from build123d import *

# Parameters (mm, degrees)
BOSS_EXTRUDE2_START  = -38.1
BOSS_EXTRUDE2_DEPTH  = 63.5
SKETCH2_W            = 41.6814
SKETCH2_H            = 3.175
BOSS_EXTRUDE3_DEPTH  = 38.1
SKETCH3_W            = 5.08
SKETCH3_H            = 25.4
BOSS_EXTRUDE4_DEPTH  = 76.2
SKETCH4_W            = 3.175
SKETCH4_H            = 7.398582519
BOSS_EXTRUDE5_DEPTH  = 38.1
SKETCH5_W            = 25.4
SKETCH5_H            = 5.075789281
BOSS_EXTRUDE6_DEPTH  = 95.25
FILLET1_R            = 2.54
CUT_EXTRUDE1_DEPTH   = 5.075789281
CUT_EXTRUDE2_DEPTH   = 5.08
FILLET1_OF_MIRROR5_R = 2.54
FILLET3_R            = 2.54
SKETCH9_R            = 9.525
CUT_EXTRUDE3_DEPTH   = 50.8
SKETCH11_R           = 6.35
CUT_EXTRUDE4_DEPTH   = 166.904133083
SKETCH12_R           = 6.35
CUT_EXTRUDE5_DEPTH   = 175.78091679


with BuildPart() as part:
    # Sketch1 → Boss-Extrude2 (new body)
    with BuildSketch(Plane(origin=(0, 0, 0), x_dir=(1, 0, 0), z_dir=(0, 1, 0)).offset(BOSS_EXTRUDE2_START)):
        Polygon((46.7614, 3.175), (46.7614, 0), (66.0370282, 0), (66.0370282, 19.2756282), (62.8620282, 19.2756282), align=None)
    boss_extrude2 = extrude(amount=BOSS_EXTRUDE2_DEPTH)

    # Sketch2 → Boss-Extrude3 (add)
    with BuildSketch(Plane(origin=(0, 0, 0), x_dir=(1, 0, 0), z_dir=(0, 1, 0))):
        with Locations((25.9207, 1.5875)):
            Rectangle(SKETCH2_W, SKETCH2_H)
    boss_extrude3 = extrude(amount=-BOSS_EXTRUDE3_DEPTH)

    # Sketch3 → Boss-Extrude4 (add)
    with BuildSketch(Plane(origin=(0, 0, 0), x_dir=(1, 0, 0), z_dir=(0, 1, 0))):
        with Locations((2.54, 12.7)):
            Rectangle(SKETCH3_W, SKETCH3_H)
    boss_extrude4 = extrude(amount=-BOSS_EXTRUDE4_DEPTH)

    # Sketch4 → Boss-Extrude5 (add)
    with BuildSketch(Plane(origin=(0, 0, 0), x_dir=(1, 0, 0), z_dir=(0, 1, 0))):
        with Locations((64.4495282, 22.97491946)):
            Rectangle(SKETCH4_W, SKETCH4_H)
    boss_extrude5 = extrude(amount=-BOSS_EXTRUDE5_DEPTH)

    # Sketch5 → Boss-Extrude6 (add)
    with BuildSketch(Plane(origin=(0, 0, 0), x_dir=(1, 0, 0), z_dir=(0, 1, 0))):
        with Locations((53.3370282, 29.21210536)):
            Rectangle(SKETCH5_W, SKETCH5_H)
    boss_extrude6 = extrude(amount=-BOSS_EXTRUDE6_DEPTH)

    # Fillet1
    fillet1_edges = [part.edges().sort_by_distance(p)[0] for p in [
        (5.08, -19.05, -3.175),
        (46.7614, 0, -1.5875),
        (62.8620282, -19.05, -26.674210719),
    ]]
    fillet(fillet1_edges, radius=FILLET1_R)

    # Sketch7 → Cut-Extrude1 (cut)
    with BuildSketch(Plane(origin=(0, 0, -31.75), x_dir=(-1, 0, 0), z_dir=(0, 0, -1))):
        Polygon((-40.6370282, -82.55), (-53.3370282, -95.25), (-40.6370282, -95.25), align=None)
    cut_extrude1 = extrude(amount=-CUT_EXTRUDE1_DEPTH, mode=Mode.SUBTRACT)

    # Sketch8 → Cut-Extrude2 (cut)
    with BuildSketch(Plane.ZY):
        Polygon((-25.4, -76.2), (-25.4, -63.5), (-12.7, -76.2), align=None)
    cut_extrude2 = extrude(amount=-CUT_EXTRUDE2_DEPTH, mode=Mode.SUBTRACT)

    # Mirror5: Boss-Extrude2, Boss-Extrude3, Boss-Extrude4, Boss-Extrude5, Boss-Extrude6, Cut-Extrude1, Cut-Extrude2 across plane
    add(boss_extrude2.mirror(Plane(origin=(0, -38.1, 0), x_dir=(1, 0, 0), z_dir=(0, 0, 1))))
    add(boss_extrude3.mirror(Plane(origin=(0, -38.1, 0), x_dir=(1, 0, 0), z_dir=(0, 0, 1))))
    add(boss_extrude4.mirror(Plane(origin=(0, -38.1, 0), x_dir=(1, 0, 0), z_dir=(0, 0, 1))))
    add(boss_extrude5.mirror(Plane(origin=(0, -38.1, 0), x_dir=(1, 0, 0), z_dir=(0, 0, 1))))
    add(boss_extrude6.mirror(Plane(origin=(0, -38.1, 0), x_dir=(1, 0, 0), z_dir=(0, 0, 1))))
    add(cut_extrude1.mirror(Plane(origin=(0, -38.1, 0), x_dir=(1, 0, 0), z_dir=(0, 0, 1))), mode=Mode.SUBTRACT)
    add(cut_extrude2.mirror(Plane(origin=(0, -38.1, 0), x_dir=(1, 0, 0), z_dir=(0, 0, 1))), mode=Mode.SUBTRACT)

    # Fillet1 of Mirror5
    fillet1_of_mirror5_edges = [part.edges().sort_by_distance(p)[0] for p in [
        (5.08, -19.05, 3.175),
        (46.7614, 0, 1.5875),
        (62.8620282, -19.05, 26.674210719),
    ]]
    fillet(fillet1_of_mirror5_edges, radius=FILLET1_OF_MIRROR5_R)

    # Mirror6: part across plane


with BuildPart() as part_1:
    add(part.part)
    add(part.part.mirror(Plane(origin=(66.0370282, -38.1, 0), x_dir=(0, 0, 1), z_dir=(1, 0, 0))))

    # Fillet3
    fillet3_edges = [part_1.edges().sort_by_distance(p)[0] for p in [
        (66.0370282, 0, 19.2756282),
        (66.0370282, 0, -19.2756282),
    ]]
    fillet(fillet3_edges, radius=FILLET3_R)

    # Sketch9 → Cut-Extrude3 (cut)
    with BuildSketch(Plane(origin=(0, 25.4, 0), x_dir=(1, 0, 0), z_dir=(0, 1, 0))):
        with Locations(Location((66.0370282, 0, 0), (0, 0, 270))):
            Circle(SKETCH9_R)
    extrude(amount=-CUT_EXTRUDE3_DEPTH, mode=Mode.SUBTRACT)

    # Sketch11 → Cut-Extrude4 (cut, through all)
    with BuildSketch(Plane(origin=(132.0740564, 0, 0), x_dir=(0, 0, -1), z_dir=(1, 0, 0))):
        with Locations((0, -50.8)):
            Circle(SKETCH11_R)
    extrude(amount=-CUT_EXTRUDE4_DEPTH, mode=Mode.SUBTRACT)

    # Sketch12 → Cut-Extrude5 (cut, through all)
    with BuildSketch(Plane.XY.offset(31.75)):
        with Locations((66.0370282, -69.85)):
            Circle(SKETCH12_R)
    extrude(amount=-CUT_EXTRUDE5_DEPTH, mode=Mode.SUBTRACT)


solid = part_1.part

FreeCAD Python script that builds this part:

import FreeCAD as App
import Part
import Sketcher

V = App.Vector
Q = App.Units.Quantity


def edges_at(feature, points):
    """Names of the edges that pass closest to the given points."""
    edges = feature.Shape.Edges
    near = lambda p: min(range(len(edges)), key=lambda i: edges[i].distToShape(Part.Vertex(*p))[0])
    return sorted({f"Edge{near(p) + 1}" for p in points})

doc = App.newDocument("Part")
body = doc.addObject("PartDesign::Body", "Body")

# Sketch on XZ plane
sketch1 = body.newObject("Sketcher::SketchObject", "Sketch")
sketch1.AttachmentSupport = (doc.getObject("XZ_Plane"), [""])
sketch1.MapMode = "FlatFace"
sketch1.AttachmentOffset = App.Placement(V(0, 0, 1.5 * 25.4), App.Rotation())
sketch1.addGeometry([
    Part.LineSegment(V(46.8, -3.2, 0), V(46.8, 0, 0)),  # 0
    Part.LineSegment(V(46.8, 0, 0), V(66, 0, 0)),  # 1
    Part.LineSegment(V(66, 0, 0), V(66, -19.3, 0)),  # 2
    Part.LineSegment(V(66, -19.3, 0), V(62.9, -19.3, 0)),  # 3
    Part.LineSegment(V(62.9, -19.3, 0), V(46.8, -3.2, 0)),  # 4
], False)
sketch1.addConstraint([
    Sketcher.Constraint("Coincident", 0, 2, 1, 1),
    Sketcher.Constraint("Coincident", 1, 2, 2, 1),
    Sketcher.Constraint("Coincident", 2, 2, 3, 1),
    Sketcher.Constraint("Coincident", 3, 2, 4, 1),
    Sketcher.Constraint("Coincident", 4, 2, 0, 1),
    Sketcher.Constraint("Vertical", 0),
    Sketcher.Constraint("Horizontal", 1),
    Sketcher.Constraint("Vertical", 2),
    Sketcher.Constraint("Horizontal", 3),
    Sketcher.Constraint("PointOnObject", 0, 2, -1),
    Sketcher.Constraint("Equal", 3, 0),
    Sketcher.Constraint("Equal", 1, 2),
    Sketcher.Constraint("DistanceX", 3, 2, 3, 1, Q("0.125 in")),
    Sketcher.Constraint("DistanceX", -1, 1, 0, 2, Q("1.841 in")),
    Sketcher.Constraint("DistanceX", 1, 1, 1, 2, Q("19.275628 mm")),
])
pad1 = body.newObject("PartDesign::Pad", "Pad")
pad1.Profile = sketch1
pad1.Length = Q("2.5 in")
pad1.Reversed = True

# Sketch on XZ plane
sketch2 = body.newObject("Sketcher::SketchObject", "Sketch001")
sketch2.AttachmentSupport = (doc.getObject("XZ_Plane"), [""])
sketch2.MapMode = "FlatFace"
sketch2.addGeometry([
    Part.LineSegment(V(5.1, -3.2, 0), V(5.1, 0, 0)),
    Part.LineSegment(V(5.1, 0, 0), V(46.8, 0, 0)),
    Part.LineSegment(V(46.8, 0, 0), V(46.8, -3.2, 0)),
    Part.LineSegment(V(46.8, -3.2, 0), V(5.1, -3.2, 0)),
], False)
sketch2.addConstraint([
    Sketcher.Constraint("Coincident", 0, 2, 1, 1),
    Sketcher.Constraint("Coincident", 1, 2, 2, 1),
    Sketcher.Constraint("Coincident", 2, 2, 3, 1),
    Sketcher.Constraint("Coincident", 3, 2, 0, 1),
    Sketcher.Constraint("Vertical", 0),
    Sketcher.Constraint("Horizontal", 1),
    Sketcher.Constraint("Vertical", 2),
    Sketcher.Constraint("Horizontal", 3),
    Sketcher.Constraint("PointOnObject", 0, 2, -1),
    Sketcher.Constraint("DistanceX", -1, 1, 0, 2, Q("0.2 in")),
    Sketcher.Constraint("DistanceX", 1, 1, 1, 2, Q("1.641 in")),
    Sketcher.Constraint("DistanceY", 0, 1, 0, 2, Q("0.125 in")),
])
pad2 = body.newObject("PartDesign::Pad", "Pad001")
pad2.Profile = sketch2
pad2.Length = Q("1.5 in")

# Sketch on XZ plane
sketch3 = body.newObject("Sketcher::SketchObject", "Sketch002")
sketch3.AttachmentSupport = (doc.getObject("XZ_Plane"), [""])
sketch3.MapMode = "FlatFace"
sketch3.addGeometry([
    Part.LineSegment(V(0, -25, 0), V(0, 0, 0)),
    Part.LineSegment(V(0, 0, 0), V(5, 0, 0)),
    Part.LineSegment(V(5, 0, 0), V(5, -25, 0)),
    Part.LineSegment(V(5, -25, 0), V(0, -25, 0)),
], False)
sketch3.addConstraint([
    Sketcher.Constraint("Coincident", 0, 2, 1, 1),
    Sketcher.Constraint("Coincident", 1, 2, 2, 1),
    Sketcher.Constraint("Coincident", 2, 2, 3, 1),
    Sketcher.Constraint("Coincident", 3, 2, 0, 1),
    Sketcher.Constraint("Vertical", 0),
    Sketcher.Constraint("Horizontal", 1),
    Sketcher.Constraint("Vertical", 2),
    Sketcher.Constraint("Horizontal", 3),
    Sketcher.Constraint("Coincident", 0, 2, -1, 1),
    Sketcher.Constraint("DistanceY", 0, 1, 0, 2, Q("1 in")),
    Sketcher.Constraint("DistanceX", 1, 1, 1, 2, Q("0.2 in")),
])
pad3 = body.newObject("PartDesign::Pad", "Pad002")
pad3.Profile = sketch3
pad3.Length = Q("3 in")

# Sketch on XZ plane
sketch4 = body.newObject("Sketcher::SketchObject", "Sketch003")
sketch4.AttachmentSupport = (doc.getObject("XZ_Plane"), [""])
sketch4.MapMode = "FlatFace"
sketch4.addGeometry([
    Part.LineSegment(V(62.9, -26.7, 0), V(62.9, -19.3, 0)),
    Part.LineSegment(V(62.9, -19.3, 0), V(66, -19.3, 0)),
    Part.LineSegment(V(66, -19.3, 0), V(66, -26.7, 0)),
    Part.LineSegment(V(66, -26.7, 0), V(62.9, -26.7, 0)),
], False)
sketch4.addConstraint([
    Sketcher.Constraint("Coincident", 0, 2, 1, 1),
    Sketcher.Constraint("Coincident", 1, 2, 2, 1),
    Sketcher.Constraint("Coincident", 2, 2, 3, 1),
    Sketcher.Constraint("Coincident", 3, 2, 0, 1),
    Sketcher.Constraint("Vertical", 0),
    Sketcher.Constraint("Horizontal", 1),
    Sketcher.Constraint("Vertical", 2),
    Sketcher.Constraint("Horizontal", 3),
    Sketcher.Constraint("DistanceX", 1, 1, 1, 2, Q("0.125 in")),
    Sketcher.Constraint("DistanceY", 0, 1, 0, 2, Q("7.398583 mm")),
    Sketcher.Constraint("DistanceX", -1, 1, 0, 2, Q("62.862028 mm")),
    Sketcher.Constraint("DistanceY", 0, 2, -1, 1, Q("19.275628 mm")),
])
pad4 = body.newObject("PartDesign::Pad", "Pad003")
pad4.Profile = sketch4
pad4.Length = Q("1.5 in")

# Sketch on XZ plane
sketch5 = body.newObject("Sketcher::SketchObject", "Sketch004")
sketch5.AttachmentSupport = (doc.getObject("XZ_Plane"), [""])
sketch5.MapMode = "FlatFace"
sketch5.addGeometry([
    Part.LineSegment(V(41, -32, 0), V(41, -27, 0)),
    Part.LineSegment(V(41, -27, 0), V(66, -27, 0)),
    Part.LineSegment(V(66, -27, 0), V(66, -32, 0)),
    Part.LineSegment(V(66, -32, 0), V(41, -32, 0)),
], False)
sketch5.addConstraint([
    Sketcher.Constraint("Coincident", 0, 2, 1, 1),
    Sketcher.Constraint("Coincident", 1, 2, 2, 1),
    Sketcher.Constraint("Coincident", 2, 2, 3, 1),
    Sketcher.Constraint("Coincident", 3, 2, 0, 1),
    Sketcher.Constraint("Vertical", 0),
    Sketcher.Constraint("Horizontal", 1),
    Sketcher.Constraint("Vertical", 2),
    Sketcher.Constraint("Horizontal", 3),
    Sketcher.Constraint("DistanceX", 1, 1, 1, 2, Q("1 in")),
    Sketcher.Constraint("DistanceY", 2, 2, -1, 1, Q("1.25 in")),
    Sketcher.Constraint("DistanceY", 0, 1, 0, 2, Q("5.075789 mm")),
    Sketcher.Constraint("DistanceX", -1, 1, 0, 2, Q("40.637028 mm")),
])
pad5 = body.newObject("PartDesign::Pad", "Pad004")
pad5.Profile = sketch5
pad5.Length = Q("3.75 in")
doc.recompute()

fillet = body.newObject("PartDesign::Fillet", "Fillet")
fillet.Base = (pad5, edges_at(pad5, [(5.08, -19.05, -3.175), (46.761, 0, -1.587), (62.862, -19.05, -26.674)]))
fillet.Radius = Q("0.1 in")

# Sketch on XY plane
sketch6 = body.newObject("Sketcher::SketchObject", "Sketch005")
sketch6.AttachmentSupport = (doc.getObject("XY_Plane"), [""])
sketch6.MapMode = "FlatFace"
sketch6.AttachmentOffset = App.Placement(V(0, 0, -1.25 * 25.4), App.Rotation())
sketch6.addGeometry([
    Part.LineSegment(V(41, -83, 0), V(53, -95, 0)),
    Part.LineSegment(V(53, -95, 0), V(41, -95, 0)),
    Part.LineSegment(V(41, -95, 0), V(41, -83, 0)),
], False)
sketch6.addConstraint([
    Sketcher.Constraint("Coincident", 0, 2, 1, 1),
    Sketcher.Constraint("Coincident", 1, 2, 2, 1),
    Sketcher.Constraint("Coincident", 2, 2, 0, 1),
    Sketcher.Constraint("Horizontal", 1),
    Sketcher.Constraint("Vertical", 2),
    Sketcher.Constraint("Equal", 1, 2),
    Sketcher.Constraint("DistanceX", 1, 2, 1, 1, Q("0.5 in")),
    Sketcher.Constraint("DistanceY", 0, 2, -1, 1, Q("3.75 in")),
    Sketcher.Constraint("DistanceX", -1, 1, 0, 2, Q("53.337028 mm")),
])
pocket1 = body.newObject("PartDesign::Pocket", "Pocket")
pocket1.Profile = sketch6
pocket1.Length = 5.075789
pocket1.Reversed = True

# Sketch on YZ plane
sketch7 = body.newObject("Sketcher::SketchObject", "Sketch006")
sketch7.AttachmentSupport = (doc.getObject("YZ_Plane"), [""])
sketch7.MapMode = "FlatFace"
sketch7.addGeometry([
    Part.LineSegment(V(-64, -25, 0), V(-76, -25, 0)),
    Part.LineSegment(V(-76, -25, 0), V(-76, -13, 0)),
    Part.LineSegment(V(-76, -13, 0), V(-64, -25, 0)),
], False)
sketch7.addConstraint([
    Sketcher.Constraint("Coincident", 0, 2, 1, 1),
    Sketcher.Constraint("Coincident", 1, 2, 2, 1),
    Sketcher.Constraint("Coincident", 2, 2, 0, 1),
    Sketcher.Constraint("Horizontal", 0),
    Sketcher.Constraint("Vertical", 1),
    Sketcher.Constraint("Equal", 0, 1),
    Sketcher.Constraint("DistanceX", 0, 2, 0, 1, Q("0.5 in")),
    Sketcher.Constraint("DistanceX", 0, 2, -1, 1, Q("3 in")),
    Sketcher.Constraint("DistanceY", 0, 2, -1, 1, Q("1 in")),
])
pocket2 = body.newObject("PartDesign::Pocket", "Pocket001")
pocket2.Profile = sketch7
pocket2.Length = Q("0.2 in")
pocket2.Reversed = True
doc.recompute()

mirrored = body.newObject("PartDesign::Mirrored", "Mirrored")
mirrored.Originals = [pad1, pad2, pad3, pad4, pad5, pocket1, pocket2]
mirrored.MirrorPlane = (doc.getObject("XY_Plane"), [""])
body.Tip = mirrored
doc.recompute()

fillet2 = body.newObject("PartDesign::Fillet", "Fillet001")
fillet2.Base = (mirrored, edges_at(mirrored, [(5.08, -19.05, 3.175), (46.761, 0, 1.587), (62.862, -19.05, 26.674)]))
fillet2.Radius = Q("0.1 in")
body2 = doc.addObject("PartDesign::Body", "Body001")
doc.recompute()

body2.BaseFeature = body
doc.recompute()

mirroring = doc.addObject("Part::Mirroring", "Mirroring")
mirroring.Source = body
mirroring.Base = V(66.037028, -38.1, 0)
mirroring.Normal = V(1, 0, 0)
body3 = doc.addObject("PartDesign::Body", "Body002")
body3.BaseFeature = mirroring
boolean = body2.newObject("PartDesign::Boolean", "Boolean")
boolean.Type = "Fuse"
boolean.addObjects([body3])
doc.recompute()

fillet3 = body2.newObject("PartDesign::Fillet", "Fillet002")
fillet3.Base = (boolean, edges_at(boolean, [(66.037, 0, 19.276), (66.037, 0, -19.276)]))
fillet3.Radius = Q("0.1 in")

# Sketch on XZ plane
sketch8 = body2.newObject("Sketcher::SketchObject", "Sketch007")
sketch8.AttachmentSupport = (doc.getObject("XZ_Plane001"), [""])
sketch8.MapMode = "FlatFace"
sketch8.AttachmentOffset = App.Placement(V(0, 0, -1 * 25.4), App.Rotation())
sketch8.addGeometry(Part.Circle(V(66, 0, 0), V(0, 0, 1), 10), False)
sketch8.addConstraint([
    Sketcher.Constraint("PointOnObject", 0, 3, -1),
    Sketcher.Constraint("Diameter", 0, Q("0.75 in")),
    Sketcher.Constraint("DistanceX", -1, 1, 0, 3, Q("66.037028 mm")),
])
pocket3 = body2.newObject("PartDesign::Pocket", "Pocket002")
pocket3.Profile = sketch8
pocket3.Length = Q("2 in")
pocket3.Reversed = True

# Sketch on YZ plane
sketch9 = body2.newObject("Sketcher::SketchObject", "Sketch008")
sketch9.AttachmentSupport = (doc.getObject("YZ_Plane001"), [""])
sketch9.MapMode = "FlatFace"
sketch9.AttachmentOffset = App.Placement(V(0, 0, 132.074056), App.Rotation())
sketch9.addGeometry(Part.Circle(V(-51, 0, 0), V(0, 0, 1), 6), False)
sketch9.addConstraint([
    Sketcher.Constraint("PointOnObject", 0, 3, -1),
    Sketcher.Constraint("Diameter", 0, Q("0.5 in")),
    Sketcher.Constraint("DistanceX", 0, 3, -1, 1, Q("2 in")),
])
pocket4 = body2.newObject("PartDesign::Pocket", "Pocket003")
pocket4.Profile = sketch9
pocket4.Type = "ThroughAll"

# Sketch on XY plane
sketch10 = body2.newObject("Sketcher::SketchObject", "Sketch009")
sketch10.AttachmentSupport = (doc.getObject("XY_Plane001"), [""])
sketch10.MapMode = "FlatFace"
sketch10.AttachmentOffset = App.Placement(V(0, 0, 1.25 * 25.4), App.Rotation())
sketch10.addGeometry(Part.Circle(V(66, -70, 0), V(0, 0, 1), 6), False)
sketch10.addConstraint([
    Sketcher.Constraint("Diameter", 0, Q("0.5 in")),
    Sketcher.Constraint("DistanceY", 0, 3, -1, 1, Q("2.75 in")),
    Sketcher.Constraint("DistanceX", -1, 1, 0, 3, Q("66.037028 mm")),
])
pocket5 = body2.newObject("PartDesign::Pocket", "Pocket004")
pocket5.Profile = sketch10
pocket5.Type = "ThroughAll"
mirroring.Visibility = False

doc.recompute()
